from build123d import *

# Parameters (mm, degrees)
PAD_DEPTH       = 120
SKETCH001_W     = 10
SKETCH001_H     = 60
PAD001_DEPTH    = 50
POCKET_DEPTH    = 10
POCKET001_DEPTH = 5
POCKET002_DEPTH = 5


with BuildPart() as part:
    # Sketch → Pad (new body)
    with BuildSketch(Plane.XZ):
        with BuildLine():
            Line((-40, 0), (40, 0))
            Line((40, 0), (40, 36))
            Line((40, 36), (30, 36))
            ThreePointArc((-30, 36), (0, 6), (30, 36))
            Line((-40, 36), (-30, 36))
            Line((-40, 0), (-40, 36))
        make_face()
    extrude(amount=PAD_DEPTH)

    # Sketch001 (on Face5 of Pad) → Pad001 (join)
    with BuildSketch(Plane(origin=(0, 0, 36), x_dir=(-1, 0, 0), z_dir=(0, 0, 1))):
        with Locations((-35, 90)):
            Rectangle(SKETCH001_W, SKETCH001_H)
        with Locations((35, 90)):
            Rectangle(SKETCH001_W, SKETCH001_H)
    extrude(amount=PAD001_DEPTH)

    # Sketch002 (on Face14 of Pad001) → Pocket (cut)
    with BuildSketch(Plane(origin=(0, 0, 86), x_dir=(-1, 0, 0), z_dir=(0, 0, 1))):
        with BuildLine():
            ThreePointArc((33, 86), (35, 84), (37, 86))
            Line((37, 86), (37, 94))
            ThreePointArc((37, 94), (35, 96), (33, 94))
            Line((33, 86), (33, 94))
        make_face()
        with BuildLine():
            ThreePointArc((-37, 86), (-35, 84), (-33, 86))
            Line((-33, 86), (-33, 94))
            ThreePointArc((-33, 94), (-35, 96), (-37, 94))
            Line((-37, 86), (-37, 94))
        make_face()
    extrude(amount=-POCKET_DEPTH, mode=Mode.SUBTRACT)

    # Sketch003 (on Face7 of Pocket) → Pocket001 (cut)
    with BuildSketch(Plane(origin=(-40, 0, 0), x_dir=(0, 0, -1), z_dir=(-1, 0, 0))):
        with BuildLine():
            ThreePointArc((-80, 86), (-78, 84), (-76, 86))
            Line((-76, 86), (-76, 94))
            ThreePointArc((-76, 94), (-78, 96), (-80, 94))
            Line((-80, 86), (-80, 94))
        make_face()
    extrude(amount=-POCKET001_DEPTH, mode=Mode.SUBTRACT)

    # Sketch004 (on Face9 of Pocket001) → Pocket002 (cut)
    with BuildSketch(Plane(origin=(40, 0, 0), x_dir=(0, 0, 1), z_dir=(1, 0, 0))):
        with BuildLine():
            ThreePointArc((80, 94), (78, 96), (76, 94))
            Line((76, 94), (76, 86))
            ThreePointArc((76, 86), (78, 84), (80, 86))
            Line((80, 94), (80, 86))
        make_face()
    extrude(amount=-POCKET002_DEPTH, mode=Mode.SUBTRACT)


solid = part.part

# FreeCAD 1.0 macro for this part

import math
import FreeCAD as App
import Part
import Sketcher
from FreeCAD import Vector
Q = App.Units.Quantity

doc = App.newDocument("Part")
body = doc.addObject("PartDesign::Body", "Body")

# Sketch on XZ plane
sketch1 = body.newObject("Sketcher::SketchObject", "Sketch")
sketch1.AttachmentSupport = (doc.getObject("XZ_Plane"), [""])
sketch1.MapMode = "FlatFace"
sketch1.addGeometry(Part.LineSegment(Vector(-40, 0, 0), Vector(40, 0, 0)), False)
sketch1.addGeometry(Part.LineSegment(Vector(40, 0, 0), Vector(40, 36, 0)), False)
sketch1.addGeometry(Part.LineSegment(Vector(40, 36, 0), Vector(30, 36, 0)), False)
sketch1.addGeometry(Part.ArcOfCircle(Part.Circle(Vector(0, 36, 0), Vector(0, 0, 1), 30), math.radians(180), math.radians(360)), False)
sketch1.addGeometry(Part.LineSegment(Vector(-30, 36, 0), Vector(-40, 36, 0)), False)
sketch1.addGeometry(Part.LineSegment(Vector(-40, 36, 0), Vector(-40, 0, 0)), False)
sketch1.addConstraint(Sketcher.Constraint("Coincident", 0, 2, 1, 1))
sketch1.addConstraint(Sketcher.Constraint("Coincident", 1, 2, 2, 1))
sketch1.addConstraint(Sketcher.Constraint("Coincident", 2, 2, 3, 2))
sketch1.addConstraint(Sketcher.Constraint("Coincident", 3, 1, 4, 1))
sketch1.addConstraint(Sketcher.Constraint("Coincident", 4, 2, 5, 1))
sketch1.addConstraint(Sketcher.Constraint("Coincident", 5, 2, 0, 1))
sketch1.addConstraint(Sketcher.Constraint("Horizontal", 0))
sketch1.addConstraint(Sketcher.Constraint("Vertical", 1))
sketch1.addConstraint(Sketcher.Constraint("Horizontal", 2))
sketch1.addConstraint(Sketcher.Constraint("Horizontal", 4))
sketch1.addConstraint(Sketcher.Constraint("Vertical", 5))
sketch1.addConstraint(Sketcher.Constraint("Symmetric", 0, 2, 5, 2, -1, 1))
sketch1.addConstraint(Sketcher.Constraint("Symmetric", 2, 2, 3, 1, -2))
sketch1.addConstraint(Sketcher.Constraint("Horizontal", 3, 3, 1, 2))
sketch1.addConstraint(Sketcher.Constraint("Radius", 3, Q("30 mm")))
sketch1.addConstraint(Sketcher.Constraint("DistanceX", 0, 1, 0, 2, Q("80 mm")))
sketch1.addConstraint(Sketcher.Constraint("DistanceY", 1, 1, 1, 2, Q("36 mm")))
pad1 = body.newObject("PartDesign::Pad", "Pad")
pad1.Profile = sketch1
pad1.Length = 120

# Sketch on XY plane
sketch2 = body.newObject("Sketcher::SketchObject", "Sketch001")
sketch2.AttachmentSupport = (doc.getObject("XY_Plane"), [""])
sketch2.MapMode = "FlatFace"
sketch2.AttachmentOffset = App.Placement(Vector(0, 0, 36), App.Rotation())
sketch2.addGeometry(Part.LineSegment(Vector(40, -120, 0), Vector(40, -60, 0)), False)
sketch2.addGeometry(Part.LineSegment(Vector(40, -60, 0), Vector(30, -60, 0)), False)
sketch2.addGeometry(Part.LineSegment(Vector(30, -60, 0), Vector(30, -120, 0)), False)
sketch2.addGeometry(Part.LineSegment(Vector(30, -120, 0), Vector(40, -120, 0)), False)
sketch2.addGeometry(Part.LineSegment(Vector(-30, -120, 0), Vector(-30, -60, 0)), False)
sketch2.addGeometry(Part.LineSegment(Vector(-30, -60, 0), Vector(-40, -60, 0)), False)
sketch2.addGeometry(Part.LineSegment(Vector(-40, -60, 0), Vector(-40, -120, 0)), False)
sketch2.addGeometry(Part.LineSegment(Vector(-40, -120, 0), Vector(-30, -120, 0)), False)
sketch2.addConstraint(Sketcher.Constraint("Coincident", 0, 2, 1, 1))
sketch2.addConstraint(Sketcher.Constraint("Coincident", 1, 2, 2, 1))
sketch2.addConstraint(Sketcher.Constraint("Coincident", 2, 2, 3, 1))
sketch2.addConstraint(Sketcher.Constraint("Coincident", 3, 2, 0, 1))
sketch2.addConstraint(Sketcher.Constraint("Coincident", 4, 2, 5, 1))
sketch2.addConstraint(Sketcher.Constraint("Coincident", 5, 2, 6, 1))
sketch2.addConstraint(Sketcher.Constraint("Coincident", 6, 2, 7, 1))
sketch2.addConstraint(Sketcher.Constraint("Coincident", 7, 2, 4, 1))
sketch2.addConstraint(Sketcher.Constraint("Vertical", 0))
sketch2.addConstraint(Sketcher.Constraint("Horizontal", 1))
sketch2.addConstraint(Sketcher.Constraint("Vertical", 2))
sketch2.addConstraint(Sketcher.Constraint("Horizontal", 3))
sketch2.addConstraint(Sketcher.Constraint("Vertical", 4))
sketch2.addConstraint(Sketcher.Constraint("Horizontal", 5))
sketch2.addConstraint(Sketcher.Constraint("Vertical", 6))
sketch2.addConstraint(Sketcher.Constraint("Horizontal", 7))
sketch2.addConstraint(Sketcher.Constraint("Symmetric", 1, 2, 4, 2, -2))
sketch2.addConstraint(Sketcher.Constraint("Symmetric", 3, 2, 6, 2, -2))
sketch2.addConstraint(Sketcher.Constraint("DistanceX", 1, 2, 1, 1, Q("10 mm")))
sketch2.addConstraint(Sketcher.Constraint("DistanceY", 0, 1, 0, 2, Q("60 mm")))
sketch2.addConstraint(Sketcher.Constraint("DistanceX", -1, 1, 0, 2, Q("40 mm")))
sketch2.addConstraint(Sketcher.Constraint("DistanceY", 0, 2, -1, 1, Q("60 mm")))
pad2 = body.newObject("PartDesign::Pad", "Pad001")
pad2.Profile = sketch2
pad2.Length = 50

# Sketch on XY plane
sketch3 = body.newObject("Sketcher::SketchObject", "Sketch002")
sketch3.AttachmentSupport = (doc.getObject("XY_Plane"), [""])
sketch3.MapMode = "FlatFace"
sketch3.AttachmentOffset = App.Placement(Vector(0, 0, 86), App.Rotation())
sketch3.addGeometry(Part.ArcOfCircle(Part.Circle(Vector(-35, -86, 0), Vector(0, 0, 1), 2), math.radians(0), math.radians(180)), False)
sketch3.addGeometry(Part.LineSegment(Vector(-37, -86, 0), Vector(-37, -94, 0)), False)
sketch3.addGeometry(Part.ArcOfCircle(Part.Circle(Vector(-35, -94, 0), Vector(0, 0, 1), 2), math.radians(180), math.radians(360)), False)
sketch3.addGeometry(Part.LineSegment(Vector(-33, -94, 0), Vector(-33, -86, 0)), False)
sketch3.addGeometry(Part.ArcOfCircle(Part.Circle(Vector(35, -86, 0), Vector(0, 0, 1), 2), math.radians(0), math.radians(180)), False)
sketch3.addGeometry(Part.LineSegment(Vector(33, -86, 0), Vector(33, -94, 0)), False)
sketch3.addGeometry(Part.ArcOfCircle(Part.Circle(Vector(35, -94, 0), Vector(0, 0, 1), 2), math.radians(180), math.radians(360)), False)
sketch3.addGeometry(Part.LineSegment(Vector(37, -94, 0), Vector(37, -86, 0)), False)
sketch3.addConstraint(Sketcher.Constraint("Tangent", 0, 2, 1, 1))
sketch3.addConstraint(Sketcher.Constraint("Tangent", 1, 2, 2, 1))
sketch3.addConstraint(Sketcher.Constraint("Tangent", 2, 2, 3, 1))
sketch3.addConstraint(Sketcher.Constraint("Tangent", 3, 2, 0, 1))
sketch3.addConstraint(Sketcher.Constraint("Tangent", 4, 2, 5, 1))
sketch3.addConstraint(Sketcher.Constraint("Tangent", 5, 2, 6, 1))
sketch3.addConstraint(Sketcher.Constraint("Tangent", 6, 2, 7, 1))
sketch3.addConstraint(Sketcher.Constraint("Tangent", 7, 2, 4, 1))
sketch3.addConstraint(Sketcher.Constraint("Vertical", 1))
sketch3.addConstraint(Sketcher.Constraint("Vertical", 3))
sketch3.addConstraint(Sketcher.Constraint("Vertical", 5))
sketch3.addConstraint(Sketcher.Constraint("Vertical", 7))
sketch3.addConstraint(Sketcher.Constraint("Equal", 2, 4))
sketch3.addConstraint(Sketcher.Constraint("Symmetric", 0, 3, 4, 3, -2))
sketch3.addConstraint(Sketcher.Constraint("Horizontal", 2, 3, 6, 3))
sketch3.addConstraint(Sketcher.Constraint("Radius", 0, Q("2 mm")))
sketch3.addConstraint(Sketcher.Constraint("DistanceY", 1, 2, 1, 1, Q("8 mm")))
sketch3.addConstraint(Sketcher.Constraint("DistanceX", 0, 3, -1, 1, Q("35 mm")))
sketch3.addConstraint(Sketcher.Constraint("DistanceY", 0, 3, -1, 1, Q("86 mm")))
pocket1 = body.newObject("PartDesign::Pocket", "Pocket")
pocket1.Profile = sketch3
pocket1.Length = 10

# Sketch on YZ plane
sketch4 = body.newObject("Sketcher::SketchObject", "Sketch003")
sketch4.AttachmentSupport = (doc.getObject("YZ_Plane"), [""])
sketch4.MapMode = "FlatFace"
sketch4.AttachmentOffset = App.Placement(Vector(0, 0, -40), App.Rotation())
sketch4.addGeometry(Part.ArcOfCircle(Part.Circle(Vector(-86, 78, 0), Vector(0, 0, 1), 2), math.radians(-90), math.radians(90)), False)
sketch4.addGeometry(Part.LineSegment(Vector(-86, 76, 0), Vector(-94, 76, 0)), False)
sketch4.addGeometry(Part.ArcOfCircle(Part.Circle(Vector(-94, 78, 0), Vector(0, 0, 1), 2), math.radians(90), math.radians(270)), False)
sketch4.addGeometry(Part.LineSegment(Vector(-94, 80, 0), Vector(-86, 80, 0)), False)
sketch4.addConstraint(Sketcher.Constraint("Tangent", 0, 1, 1, 1))
sketch4.addConstraint(Sketcher.Constraint("Tangent", 1, 2, 2, 2))
sketch4.addConstraint(Sketcher.Constraint("Tangent", 2, 1, 3, 1))
sketch4.addConstraint(Sketcher.Constraint("Tangent", 3, 2, 0, 2))
sketch4.addConstraint(Sketcher.Constraint("Horizontal", 1))
sketch4.addConstraint(Sketcher.Constraint("Horizontal", 3))
sketch4.addConstraint(Sketcher.Constraint("Radius", 0, Q("2 mm")))
sketch4.addConstraint(Sketcher.Constraint("DistanceX", 1, 2, 1, 1, Q("8 mm")))
sketch4.addConstraint(Sketcher.Constraint("DistanceX", 0, 3, -1, 1, Q("86 mm")))
sketch4.addConstraint(Sketcher.Constraint("DistanceY", -1, 1, 0, 3, Q("78 mm")))
pocket2 = body.newObject("PartDesign::Pocket", "Pocket001")
pocket2.Profile = sketch4
pocket2.Length = 5
pocket2.Reversed = True

# Sketch on YZ plane
sketch5 = body.newObject("Sketcher::SketchObject", "Sketch004")
sketch5.AttachmentSupport = (doc.getObject("YZ_Plane"), [""])
sketch5.MapMode = "FlatFace"
sketch5.AttachmentOffset = App.Placement(Vector(0, 0, 40), App.Rotation())
sketch5.addGeometry(Part.ArcOfCircle(Part.Circle(Vector(-94, 78, 0), Vector(0, 0, 1), 2), math.radians(90), math.radians(270)), False)
sketch5.addGeometry(Part.LineSegment(Vector(-94, 76, 0), Vector(-86, 76, 0)), False)
sketch5.addGeometry(Part.ArcOfCircle(Part.Circle(Vector(-86, 78, 0), Vector(0, 0, 1), 2), math.radians(-90), math.radians(90)), False)
sketch5.addGeometry(Part.LineSegment(Vector(-86, 80, 0), Vector(-94, 80, 0)), False)
sketch5.addConstraint(Sketcher.Constraint("Tangent", 0, 2, 1, 1))
sketch5.addConstraint(Sketcher.Constraint("Tangent", 1, 2, 2, 1))
sketch5.addConstraint(Sketcher.Constraint("Tangent", 2, 2, 3, 1))
sketch5.addConstraint(Sketcher.Constraint("Tangent", 3, 2, 0, 1))
sketch5.addConstraint(Sketcher.Constraint("Horizontal", 1))
sketch5.addConstraint(Sketcher.Constraint("Horizontal", 3))
sketch5.addConstraint(Sketcher.Constraint("Radius", 0, Q("2 mm")))
sketch5.addConstraint(Sketcher.Constraint("DistanceX", 1, 1, 1, 2, Q("8 mm")))
sketch5.addConstraint(Sketcher.Constraint("DistanceX", 0, 3, -1, 1, Q("94 mm")))
sketch5.addConstraint(Sketcher.Constraint("DistanceY", -1, 1, 0, 3, Q("78 mm")))
pocket3 = body.newObject("PartDesign::Pocket", "Pocket002")
pocket3.Profile = sketch5
pocket3.Length = 5

doc.recompute()
